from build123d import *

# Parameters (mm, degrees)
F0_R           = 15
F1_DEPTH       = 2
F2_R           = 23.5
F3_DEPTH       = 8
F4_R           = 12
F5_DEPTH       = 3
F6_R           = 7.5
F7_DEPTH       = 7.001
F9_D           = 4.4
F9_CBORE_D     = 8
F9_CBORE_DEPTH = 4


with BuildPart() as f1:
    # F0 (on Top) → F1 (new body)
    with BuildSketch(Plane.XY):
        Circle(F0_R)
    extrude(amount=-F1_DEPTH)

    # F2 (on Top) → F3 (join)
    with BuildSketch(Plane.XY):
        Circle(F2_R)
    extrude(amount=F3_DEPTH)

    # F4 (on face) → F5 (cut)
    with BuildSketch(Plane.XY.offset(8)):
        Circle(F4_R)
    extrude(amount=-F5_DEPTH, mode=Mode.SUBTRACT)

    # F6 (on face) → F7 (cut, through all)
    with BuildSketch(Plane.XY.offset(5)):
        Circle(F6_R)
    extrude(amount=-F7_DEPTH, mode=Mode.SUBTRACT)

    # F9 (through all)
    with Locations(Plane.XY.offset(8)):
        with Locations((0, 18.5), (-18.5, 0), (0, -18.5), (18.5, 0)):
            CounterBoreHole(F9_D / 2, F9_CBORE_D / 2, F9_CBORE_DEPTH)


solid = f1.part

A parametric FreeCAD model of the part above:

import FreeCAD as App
import Part
import Sketcher

doc = App.newDocument("Part")
body = doc.addObject("PartDesign::Body", "Body")

sketch1 = body.newObject("Sketcher::SketchObject", "Sketch")
sketch1.AttachmentSupport = (doc.getObject("XY_Plane"), [""])
sketch1.MapMode = "FlatFace"
sketch1.addGeometry(Part.Circle(App.Vector(0, 0, 0), App.Vector(0, 0, 1), 15), False)
sketch1.addConstraint(Sketcher.Constraint("Coincident", 0, 3, -1, 1))
sketch1.addConstraint(Sketcher.Constraint("Diameter", 0, 30.0))
pad1 = body.newObject("PartDesign::Pad", "Pad")
pad1.Profile = sketch1
pad1.Length = 2
pad1.Reversed = True

sketch2 = body.newObject("Sketcher::SketchObject", "Sketch001")
sketch2.AttachmentSupport = (doc.getObject("XY_Plane"), [""])
sketch2.MapMode = "FlatFace"
sketch2.addGeometry(Part.Circle(App.Vector(0, 0, 0), App.Vector(0, 0, 1), 24), False)
sketch2.addConstraint(Sketcher.Constraint("Coincident", 0, 3, -1, 1))
sketch2.addConstraint(Sketcher.Constraint("Diameter", 0, 47.0))
pad2 = body.newObject("PartDesign::Pad", "Pad001")
pad2.Profile = sketch2
pad2.Length = 8

sketch3 = body.newObject("Sketcher::SketchObject", "Sketch002")
sketch3.AttachmentSupport = (doc.getObject("XY_Plane"), [""])
sketch3.MapMode = "FlatFace"
sketch3.AttachmentOffset = App.Placement(App.Vector(0, 0, 8), App.Rotation())
sketch3.addGeometry(Part.Circle(App.Vector(0, 0, 0), App.Vector(0, 0, 1), 12), False)
sketch3.addConstraint(Sketcher.Constraint("Coincident", 0, 3, -1, 1))
sketch3.addConstraint(Sketcher.Constraint("Diameter", 0, 24.0))
pocket1 = body.newObject("PartDesign::Pocket", "Pocket")
pocket1.Profile = sketch3
pocket1.Length = 3

sketch4 = body.newObject("Sketcher::SketchObject", "Sketch003")
sketch4.AttachmentSupport = (doc.getObject("XY_Plane"), [""])
sketch4.MapMode = "FlatFace"
sketch4.AttachmentOffset = App.Placement(App.Vector(0, 0, 5), App.Rotation())
sketch4.addGeometry(Part.Circle(App.Vector(0, 0, 0), App.Vector(0, 0, 1), 8), False)
sketch4.addConstraint(Sketcher.Constraint("Coincident", 0, 3, -1, 1))
sketch4.addConstraint(Sketcher.Constraint("Diameter", 0, 15.0))
pocket2 = body.newObject("PartDesign::Pocket", "Pocket001")
pocket2.Profile = sketch4
pocket2.Type = "ThroughAll"

sketch5 = body.newObject("Sketcher::SketchObject", "Sketch004")
sketch5.AttachmentSupport = (doc.getObject("XY_Plane"), [""])
sketch5.MapMode = "FlatFace"
sketch5.AttachmentOffset = App.Placement(App.Vector(0, 0, 8), App.Rotation())
sketch5.addGeometry(Part.Circle(App.Vector(0, 18.5, 0), App.Vector(0, 0, 1), 2.2), False)
sketch5.addGeometry(Part.Circle(App.Vector(-18.5, 0, 0), App.Vector(0, 0, 1), 2.2), False)
sketch5.addGeometry(Part.Circle(App.Vector(0, -18.5, 0), App.Vector(0, 0, 1), 2.2), False)
sketch5.addGeometry(Part.Circle(App.Vector(18.5, 0, 0), App.Vector(0, 0, 1), 2.2), False)
sketch5.addConstraint(Sketcher.Constraint("Equal", 0, 1))
sketch5.addConstraint(Sketcher.Constraint("Equal", 1, 2))
sketch5.addConstraint(Sketcher.Constraint("Equal", 2, 3))
sketch5.addConstraint(Sketcher.Constraint("Symmetric", 0, 3, 2, 3, -1, 1))
sketch5.addConstraint(Sketcher.Constraint("Symmetric", 1, 3, 3, 3, -1, 1))
sketch5.addConstraint(Sketcher.Constraint("PointOnObject", 0, 3, -2))
sketch5.addConstraint(Sketcher.Constraint("PointOnObject", 1, 3, -1))
sketch5.addConstraint(Sketcher.Constraint("Diameter", 0, 4.4))
sketch5.addConstraint(Sketcher.Constraint("DistanceY", 2, 3, 0, 3, 37.0))
sketch5.addConstraint(Sketcher.Constraint("DistanceX", 1, 3, 3, 3, 37.0))
doc.recompute()
hole = body.newObject("PartDesign::Hole", "Hole")
hole.Profile = sketch5
hole.ThreadType = "None"
hole.Diameter = 4.4
hole.DepthType = "ThroughAll"
hole.HoleCutType = "Counterbore"
hole.HoleCutDiameter = 8
hole.HoleCutDepth = 4

doc.recompute()
